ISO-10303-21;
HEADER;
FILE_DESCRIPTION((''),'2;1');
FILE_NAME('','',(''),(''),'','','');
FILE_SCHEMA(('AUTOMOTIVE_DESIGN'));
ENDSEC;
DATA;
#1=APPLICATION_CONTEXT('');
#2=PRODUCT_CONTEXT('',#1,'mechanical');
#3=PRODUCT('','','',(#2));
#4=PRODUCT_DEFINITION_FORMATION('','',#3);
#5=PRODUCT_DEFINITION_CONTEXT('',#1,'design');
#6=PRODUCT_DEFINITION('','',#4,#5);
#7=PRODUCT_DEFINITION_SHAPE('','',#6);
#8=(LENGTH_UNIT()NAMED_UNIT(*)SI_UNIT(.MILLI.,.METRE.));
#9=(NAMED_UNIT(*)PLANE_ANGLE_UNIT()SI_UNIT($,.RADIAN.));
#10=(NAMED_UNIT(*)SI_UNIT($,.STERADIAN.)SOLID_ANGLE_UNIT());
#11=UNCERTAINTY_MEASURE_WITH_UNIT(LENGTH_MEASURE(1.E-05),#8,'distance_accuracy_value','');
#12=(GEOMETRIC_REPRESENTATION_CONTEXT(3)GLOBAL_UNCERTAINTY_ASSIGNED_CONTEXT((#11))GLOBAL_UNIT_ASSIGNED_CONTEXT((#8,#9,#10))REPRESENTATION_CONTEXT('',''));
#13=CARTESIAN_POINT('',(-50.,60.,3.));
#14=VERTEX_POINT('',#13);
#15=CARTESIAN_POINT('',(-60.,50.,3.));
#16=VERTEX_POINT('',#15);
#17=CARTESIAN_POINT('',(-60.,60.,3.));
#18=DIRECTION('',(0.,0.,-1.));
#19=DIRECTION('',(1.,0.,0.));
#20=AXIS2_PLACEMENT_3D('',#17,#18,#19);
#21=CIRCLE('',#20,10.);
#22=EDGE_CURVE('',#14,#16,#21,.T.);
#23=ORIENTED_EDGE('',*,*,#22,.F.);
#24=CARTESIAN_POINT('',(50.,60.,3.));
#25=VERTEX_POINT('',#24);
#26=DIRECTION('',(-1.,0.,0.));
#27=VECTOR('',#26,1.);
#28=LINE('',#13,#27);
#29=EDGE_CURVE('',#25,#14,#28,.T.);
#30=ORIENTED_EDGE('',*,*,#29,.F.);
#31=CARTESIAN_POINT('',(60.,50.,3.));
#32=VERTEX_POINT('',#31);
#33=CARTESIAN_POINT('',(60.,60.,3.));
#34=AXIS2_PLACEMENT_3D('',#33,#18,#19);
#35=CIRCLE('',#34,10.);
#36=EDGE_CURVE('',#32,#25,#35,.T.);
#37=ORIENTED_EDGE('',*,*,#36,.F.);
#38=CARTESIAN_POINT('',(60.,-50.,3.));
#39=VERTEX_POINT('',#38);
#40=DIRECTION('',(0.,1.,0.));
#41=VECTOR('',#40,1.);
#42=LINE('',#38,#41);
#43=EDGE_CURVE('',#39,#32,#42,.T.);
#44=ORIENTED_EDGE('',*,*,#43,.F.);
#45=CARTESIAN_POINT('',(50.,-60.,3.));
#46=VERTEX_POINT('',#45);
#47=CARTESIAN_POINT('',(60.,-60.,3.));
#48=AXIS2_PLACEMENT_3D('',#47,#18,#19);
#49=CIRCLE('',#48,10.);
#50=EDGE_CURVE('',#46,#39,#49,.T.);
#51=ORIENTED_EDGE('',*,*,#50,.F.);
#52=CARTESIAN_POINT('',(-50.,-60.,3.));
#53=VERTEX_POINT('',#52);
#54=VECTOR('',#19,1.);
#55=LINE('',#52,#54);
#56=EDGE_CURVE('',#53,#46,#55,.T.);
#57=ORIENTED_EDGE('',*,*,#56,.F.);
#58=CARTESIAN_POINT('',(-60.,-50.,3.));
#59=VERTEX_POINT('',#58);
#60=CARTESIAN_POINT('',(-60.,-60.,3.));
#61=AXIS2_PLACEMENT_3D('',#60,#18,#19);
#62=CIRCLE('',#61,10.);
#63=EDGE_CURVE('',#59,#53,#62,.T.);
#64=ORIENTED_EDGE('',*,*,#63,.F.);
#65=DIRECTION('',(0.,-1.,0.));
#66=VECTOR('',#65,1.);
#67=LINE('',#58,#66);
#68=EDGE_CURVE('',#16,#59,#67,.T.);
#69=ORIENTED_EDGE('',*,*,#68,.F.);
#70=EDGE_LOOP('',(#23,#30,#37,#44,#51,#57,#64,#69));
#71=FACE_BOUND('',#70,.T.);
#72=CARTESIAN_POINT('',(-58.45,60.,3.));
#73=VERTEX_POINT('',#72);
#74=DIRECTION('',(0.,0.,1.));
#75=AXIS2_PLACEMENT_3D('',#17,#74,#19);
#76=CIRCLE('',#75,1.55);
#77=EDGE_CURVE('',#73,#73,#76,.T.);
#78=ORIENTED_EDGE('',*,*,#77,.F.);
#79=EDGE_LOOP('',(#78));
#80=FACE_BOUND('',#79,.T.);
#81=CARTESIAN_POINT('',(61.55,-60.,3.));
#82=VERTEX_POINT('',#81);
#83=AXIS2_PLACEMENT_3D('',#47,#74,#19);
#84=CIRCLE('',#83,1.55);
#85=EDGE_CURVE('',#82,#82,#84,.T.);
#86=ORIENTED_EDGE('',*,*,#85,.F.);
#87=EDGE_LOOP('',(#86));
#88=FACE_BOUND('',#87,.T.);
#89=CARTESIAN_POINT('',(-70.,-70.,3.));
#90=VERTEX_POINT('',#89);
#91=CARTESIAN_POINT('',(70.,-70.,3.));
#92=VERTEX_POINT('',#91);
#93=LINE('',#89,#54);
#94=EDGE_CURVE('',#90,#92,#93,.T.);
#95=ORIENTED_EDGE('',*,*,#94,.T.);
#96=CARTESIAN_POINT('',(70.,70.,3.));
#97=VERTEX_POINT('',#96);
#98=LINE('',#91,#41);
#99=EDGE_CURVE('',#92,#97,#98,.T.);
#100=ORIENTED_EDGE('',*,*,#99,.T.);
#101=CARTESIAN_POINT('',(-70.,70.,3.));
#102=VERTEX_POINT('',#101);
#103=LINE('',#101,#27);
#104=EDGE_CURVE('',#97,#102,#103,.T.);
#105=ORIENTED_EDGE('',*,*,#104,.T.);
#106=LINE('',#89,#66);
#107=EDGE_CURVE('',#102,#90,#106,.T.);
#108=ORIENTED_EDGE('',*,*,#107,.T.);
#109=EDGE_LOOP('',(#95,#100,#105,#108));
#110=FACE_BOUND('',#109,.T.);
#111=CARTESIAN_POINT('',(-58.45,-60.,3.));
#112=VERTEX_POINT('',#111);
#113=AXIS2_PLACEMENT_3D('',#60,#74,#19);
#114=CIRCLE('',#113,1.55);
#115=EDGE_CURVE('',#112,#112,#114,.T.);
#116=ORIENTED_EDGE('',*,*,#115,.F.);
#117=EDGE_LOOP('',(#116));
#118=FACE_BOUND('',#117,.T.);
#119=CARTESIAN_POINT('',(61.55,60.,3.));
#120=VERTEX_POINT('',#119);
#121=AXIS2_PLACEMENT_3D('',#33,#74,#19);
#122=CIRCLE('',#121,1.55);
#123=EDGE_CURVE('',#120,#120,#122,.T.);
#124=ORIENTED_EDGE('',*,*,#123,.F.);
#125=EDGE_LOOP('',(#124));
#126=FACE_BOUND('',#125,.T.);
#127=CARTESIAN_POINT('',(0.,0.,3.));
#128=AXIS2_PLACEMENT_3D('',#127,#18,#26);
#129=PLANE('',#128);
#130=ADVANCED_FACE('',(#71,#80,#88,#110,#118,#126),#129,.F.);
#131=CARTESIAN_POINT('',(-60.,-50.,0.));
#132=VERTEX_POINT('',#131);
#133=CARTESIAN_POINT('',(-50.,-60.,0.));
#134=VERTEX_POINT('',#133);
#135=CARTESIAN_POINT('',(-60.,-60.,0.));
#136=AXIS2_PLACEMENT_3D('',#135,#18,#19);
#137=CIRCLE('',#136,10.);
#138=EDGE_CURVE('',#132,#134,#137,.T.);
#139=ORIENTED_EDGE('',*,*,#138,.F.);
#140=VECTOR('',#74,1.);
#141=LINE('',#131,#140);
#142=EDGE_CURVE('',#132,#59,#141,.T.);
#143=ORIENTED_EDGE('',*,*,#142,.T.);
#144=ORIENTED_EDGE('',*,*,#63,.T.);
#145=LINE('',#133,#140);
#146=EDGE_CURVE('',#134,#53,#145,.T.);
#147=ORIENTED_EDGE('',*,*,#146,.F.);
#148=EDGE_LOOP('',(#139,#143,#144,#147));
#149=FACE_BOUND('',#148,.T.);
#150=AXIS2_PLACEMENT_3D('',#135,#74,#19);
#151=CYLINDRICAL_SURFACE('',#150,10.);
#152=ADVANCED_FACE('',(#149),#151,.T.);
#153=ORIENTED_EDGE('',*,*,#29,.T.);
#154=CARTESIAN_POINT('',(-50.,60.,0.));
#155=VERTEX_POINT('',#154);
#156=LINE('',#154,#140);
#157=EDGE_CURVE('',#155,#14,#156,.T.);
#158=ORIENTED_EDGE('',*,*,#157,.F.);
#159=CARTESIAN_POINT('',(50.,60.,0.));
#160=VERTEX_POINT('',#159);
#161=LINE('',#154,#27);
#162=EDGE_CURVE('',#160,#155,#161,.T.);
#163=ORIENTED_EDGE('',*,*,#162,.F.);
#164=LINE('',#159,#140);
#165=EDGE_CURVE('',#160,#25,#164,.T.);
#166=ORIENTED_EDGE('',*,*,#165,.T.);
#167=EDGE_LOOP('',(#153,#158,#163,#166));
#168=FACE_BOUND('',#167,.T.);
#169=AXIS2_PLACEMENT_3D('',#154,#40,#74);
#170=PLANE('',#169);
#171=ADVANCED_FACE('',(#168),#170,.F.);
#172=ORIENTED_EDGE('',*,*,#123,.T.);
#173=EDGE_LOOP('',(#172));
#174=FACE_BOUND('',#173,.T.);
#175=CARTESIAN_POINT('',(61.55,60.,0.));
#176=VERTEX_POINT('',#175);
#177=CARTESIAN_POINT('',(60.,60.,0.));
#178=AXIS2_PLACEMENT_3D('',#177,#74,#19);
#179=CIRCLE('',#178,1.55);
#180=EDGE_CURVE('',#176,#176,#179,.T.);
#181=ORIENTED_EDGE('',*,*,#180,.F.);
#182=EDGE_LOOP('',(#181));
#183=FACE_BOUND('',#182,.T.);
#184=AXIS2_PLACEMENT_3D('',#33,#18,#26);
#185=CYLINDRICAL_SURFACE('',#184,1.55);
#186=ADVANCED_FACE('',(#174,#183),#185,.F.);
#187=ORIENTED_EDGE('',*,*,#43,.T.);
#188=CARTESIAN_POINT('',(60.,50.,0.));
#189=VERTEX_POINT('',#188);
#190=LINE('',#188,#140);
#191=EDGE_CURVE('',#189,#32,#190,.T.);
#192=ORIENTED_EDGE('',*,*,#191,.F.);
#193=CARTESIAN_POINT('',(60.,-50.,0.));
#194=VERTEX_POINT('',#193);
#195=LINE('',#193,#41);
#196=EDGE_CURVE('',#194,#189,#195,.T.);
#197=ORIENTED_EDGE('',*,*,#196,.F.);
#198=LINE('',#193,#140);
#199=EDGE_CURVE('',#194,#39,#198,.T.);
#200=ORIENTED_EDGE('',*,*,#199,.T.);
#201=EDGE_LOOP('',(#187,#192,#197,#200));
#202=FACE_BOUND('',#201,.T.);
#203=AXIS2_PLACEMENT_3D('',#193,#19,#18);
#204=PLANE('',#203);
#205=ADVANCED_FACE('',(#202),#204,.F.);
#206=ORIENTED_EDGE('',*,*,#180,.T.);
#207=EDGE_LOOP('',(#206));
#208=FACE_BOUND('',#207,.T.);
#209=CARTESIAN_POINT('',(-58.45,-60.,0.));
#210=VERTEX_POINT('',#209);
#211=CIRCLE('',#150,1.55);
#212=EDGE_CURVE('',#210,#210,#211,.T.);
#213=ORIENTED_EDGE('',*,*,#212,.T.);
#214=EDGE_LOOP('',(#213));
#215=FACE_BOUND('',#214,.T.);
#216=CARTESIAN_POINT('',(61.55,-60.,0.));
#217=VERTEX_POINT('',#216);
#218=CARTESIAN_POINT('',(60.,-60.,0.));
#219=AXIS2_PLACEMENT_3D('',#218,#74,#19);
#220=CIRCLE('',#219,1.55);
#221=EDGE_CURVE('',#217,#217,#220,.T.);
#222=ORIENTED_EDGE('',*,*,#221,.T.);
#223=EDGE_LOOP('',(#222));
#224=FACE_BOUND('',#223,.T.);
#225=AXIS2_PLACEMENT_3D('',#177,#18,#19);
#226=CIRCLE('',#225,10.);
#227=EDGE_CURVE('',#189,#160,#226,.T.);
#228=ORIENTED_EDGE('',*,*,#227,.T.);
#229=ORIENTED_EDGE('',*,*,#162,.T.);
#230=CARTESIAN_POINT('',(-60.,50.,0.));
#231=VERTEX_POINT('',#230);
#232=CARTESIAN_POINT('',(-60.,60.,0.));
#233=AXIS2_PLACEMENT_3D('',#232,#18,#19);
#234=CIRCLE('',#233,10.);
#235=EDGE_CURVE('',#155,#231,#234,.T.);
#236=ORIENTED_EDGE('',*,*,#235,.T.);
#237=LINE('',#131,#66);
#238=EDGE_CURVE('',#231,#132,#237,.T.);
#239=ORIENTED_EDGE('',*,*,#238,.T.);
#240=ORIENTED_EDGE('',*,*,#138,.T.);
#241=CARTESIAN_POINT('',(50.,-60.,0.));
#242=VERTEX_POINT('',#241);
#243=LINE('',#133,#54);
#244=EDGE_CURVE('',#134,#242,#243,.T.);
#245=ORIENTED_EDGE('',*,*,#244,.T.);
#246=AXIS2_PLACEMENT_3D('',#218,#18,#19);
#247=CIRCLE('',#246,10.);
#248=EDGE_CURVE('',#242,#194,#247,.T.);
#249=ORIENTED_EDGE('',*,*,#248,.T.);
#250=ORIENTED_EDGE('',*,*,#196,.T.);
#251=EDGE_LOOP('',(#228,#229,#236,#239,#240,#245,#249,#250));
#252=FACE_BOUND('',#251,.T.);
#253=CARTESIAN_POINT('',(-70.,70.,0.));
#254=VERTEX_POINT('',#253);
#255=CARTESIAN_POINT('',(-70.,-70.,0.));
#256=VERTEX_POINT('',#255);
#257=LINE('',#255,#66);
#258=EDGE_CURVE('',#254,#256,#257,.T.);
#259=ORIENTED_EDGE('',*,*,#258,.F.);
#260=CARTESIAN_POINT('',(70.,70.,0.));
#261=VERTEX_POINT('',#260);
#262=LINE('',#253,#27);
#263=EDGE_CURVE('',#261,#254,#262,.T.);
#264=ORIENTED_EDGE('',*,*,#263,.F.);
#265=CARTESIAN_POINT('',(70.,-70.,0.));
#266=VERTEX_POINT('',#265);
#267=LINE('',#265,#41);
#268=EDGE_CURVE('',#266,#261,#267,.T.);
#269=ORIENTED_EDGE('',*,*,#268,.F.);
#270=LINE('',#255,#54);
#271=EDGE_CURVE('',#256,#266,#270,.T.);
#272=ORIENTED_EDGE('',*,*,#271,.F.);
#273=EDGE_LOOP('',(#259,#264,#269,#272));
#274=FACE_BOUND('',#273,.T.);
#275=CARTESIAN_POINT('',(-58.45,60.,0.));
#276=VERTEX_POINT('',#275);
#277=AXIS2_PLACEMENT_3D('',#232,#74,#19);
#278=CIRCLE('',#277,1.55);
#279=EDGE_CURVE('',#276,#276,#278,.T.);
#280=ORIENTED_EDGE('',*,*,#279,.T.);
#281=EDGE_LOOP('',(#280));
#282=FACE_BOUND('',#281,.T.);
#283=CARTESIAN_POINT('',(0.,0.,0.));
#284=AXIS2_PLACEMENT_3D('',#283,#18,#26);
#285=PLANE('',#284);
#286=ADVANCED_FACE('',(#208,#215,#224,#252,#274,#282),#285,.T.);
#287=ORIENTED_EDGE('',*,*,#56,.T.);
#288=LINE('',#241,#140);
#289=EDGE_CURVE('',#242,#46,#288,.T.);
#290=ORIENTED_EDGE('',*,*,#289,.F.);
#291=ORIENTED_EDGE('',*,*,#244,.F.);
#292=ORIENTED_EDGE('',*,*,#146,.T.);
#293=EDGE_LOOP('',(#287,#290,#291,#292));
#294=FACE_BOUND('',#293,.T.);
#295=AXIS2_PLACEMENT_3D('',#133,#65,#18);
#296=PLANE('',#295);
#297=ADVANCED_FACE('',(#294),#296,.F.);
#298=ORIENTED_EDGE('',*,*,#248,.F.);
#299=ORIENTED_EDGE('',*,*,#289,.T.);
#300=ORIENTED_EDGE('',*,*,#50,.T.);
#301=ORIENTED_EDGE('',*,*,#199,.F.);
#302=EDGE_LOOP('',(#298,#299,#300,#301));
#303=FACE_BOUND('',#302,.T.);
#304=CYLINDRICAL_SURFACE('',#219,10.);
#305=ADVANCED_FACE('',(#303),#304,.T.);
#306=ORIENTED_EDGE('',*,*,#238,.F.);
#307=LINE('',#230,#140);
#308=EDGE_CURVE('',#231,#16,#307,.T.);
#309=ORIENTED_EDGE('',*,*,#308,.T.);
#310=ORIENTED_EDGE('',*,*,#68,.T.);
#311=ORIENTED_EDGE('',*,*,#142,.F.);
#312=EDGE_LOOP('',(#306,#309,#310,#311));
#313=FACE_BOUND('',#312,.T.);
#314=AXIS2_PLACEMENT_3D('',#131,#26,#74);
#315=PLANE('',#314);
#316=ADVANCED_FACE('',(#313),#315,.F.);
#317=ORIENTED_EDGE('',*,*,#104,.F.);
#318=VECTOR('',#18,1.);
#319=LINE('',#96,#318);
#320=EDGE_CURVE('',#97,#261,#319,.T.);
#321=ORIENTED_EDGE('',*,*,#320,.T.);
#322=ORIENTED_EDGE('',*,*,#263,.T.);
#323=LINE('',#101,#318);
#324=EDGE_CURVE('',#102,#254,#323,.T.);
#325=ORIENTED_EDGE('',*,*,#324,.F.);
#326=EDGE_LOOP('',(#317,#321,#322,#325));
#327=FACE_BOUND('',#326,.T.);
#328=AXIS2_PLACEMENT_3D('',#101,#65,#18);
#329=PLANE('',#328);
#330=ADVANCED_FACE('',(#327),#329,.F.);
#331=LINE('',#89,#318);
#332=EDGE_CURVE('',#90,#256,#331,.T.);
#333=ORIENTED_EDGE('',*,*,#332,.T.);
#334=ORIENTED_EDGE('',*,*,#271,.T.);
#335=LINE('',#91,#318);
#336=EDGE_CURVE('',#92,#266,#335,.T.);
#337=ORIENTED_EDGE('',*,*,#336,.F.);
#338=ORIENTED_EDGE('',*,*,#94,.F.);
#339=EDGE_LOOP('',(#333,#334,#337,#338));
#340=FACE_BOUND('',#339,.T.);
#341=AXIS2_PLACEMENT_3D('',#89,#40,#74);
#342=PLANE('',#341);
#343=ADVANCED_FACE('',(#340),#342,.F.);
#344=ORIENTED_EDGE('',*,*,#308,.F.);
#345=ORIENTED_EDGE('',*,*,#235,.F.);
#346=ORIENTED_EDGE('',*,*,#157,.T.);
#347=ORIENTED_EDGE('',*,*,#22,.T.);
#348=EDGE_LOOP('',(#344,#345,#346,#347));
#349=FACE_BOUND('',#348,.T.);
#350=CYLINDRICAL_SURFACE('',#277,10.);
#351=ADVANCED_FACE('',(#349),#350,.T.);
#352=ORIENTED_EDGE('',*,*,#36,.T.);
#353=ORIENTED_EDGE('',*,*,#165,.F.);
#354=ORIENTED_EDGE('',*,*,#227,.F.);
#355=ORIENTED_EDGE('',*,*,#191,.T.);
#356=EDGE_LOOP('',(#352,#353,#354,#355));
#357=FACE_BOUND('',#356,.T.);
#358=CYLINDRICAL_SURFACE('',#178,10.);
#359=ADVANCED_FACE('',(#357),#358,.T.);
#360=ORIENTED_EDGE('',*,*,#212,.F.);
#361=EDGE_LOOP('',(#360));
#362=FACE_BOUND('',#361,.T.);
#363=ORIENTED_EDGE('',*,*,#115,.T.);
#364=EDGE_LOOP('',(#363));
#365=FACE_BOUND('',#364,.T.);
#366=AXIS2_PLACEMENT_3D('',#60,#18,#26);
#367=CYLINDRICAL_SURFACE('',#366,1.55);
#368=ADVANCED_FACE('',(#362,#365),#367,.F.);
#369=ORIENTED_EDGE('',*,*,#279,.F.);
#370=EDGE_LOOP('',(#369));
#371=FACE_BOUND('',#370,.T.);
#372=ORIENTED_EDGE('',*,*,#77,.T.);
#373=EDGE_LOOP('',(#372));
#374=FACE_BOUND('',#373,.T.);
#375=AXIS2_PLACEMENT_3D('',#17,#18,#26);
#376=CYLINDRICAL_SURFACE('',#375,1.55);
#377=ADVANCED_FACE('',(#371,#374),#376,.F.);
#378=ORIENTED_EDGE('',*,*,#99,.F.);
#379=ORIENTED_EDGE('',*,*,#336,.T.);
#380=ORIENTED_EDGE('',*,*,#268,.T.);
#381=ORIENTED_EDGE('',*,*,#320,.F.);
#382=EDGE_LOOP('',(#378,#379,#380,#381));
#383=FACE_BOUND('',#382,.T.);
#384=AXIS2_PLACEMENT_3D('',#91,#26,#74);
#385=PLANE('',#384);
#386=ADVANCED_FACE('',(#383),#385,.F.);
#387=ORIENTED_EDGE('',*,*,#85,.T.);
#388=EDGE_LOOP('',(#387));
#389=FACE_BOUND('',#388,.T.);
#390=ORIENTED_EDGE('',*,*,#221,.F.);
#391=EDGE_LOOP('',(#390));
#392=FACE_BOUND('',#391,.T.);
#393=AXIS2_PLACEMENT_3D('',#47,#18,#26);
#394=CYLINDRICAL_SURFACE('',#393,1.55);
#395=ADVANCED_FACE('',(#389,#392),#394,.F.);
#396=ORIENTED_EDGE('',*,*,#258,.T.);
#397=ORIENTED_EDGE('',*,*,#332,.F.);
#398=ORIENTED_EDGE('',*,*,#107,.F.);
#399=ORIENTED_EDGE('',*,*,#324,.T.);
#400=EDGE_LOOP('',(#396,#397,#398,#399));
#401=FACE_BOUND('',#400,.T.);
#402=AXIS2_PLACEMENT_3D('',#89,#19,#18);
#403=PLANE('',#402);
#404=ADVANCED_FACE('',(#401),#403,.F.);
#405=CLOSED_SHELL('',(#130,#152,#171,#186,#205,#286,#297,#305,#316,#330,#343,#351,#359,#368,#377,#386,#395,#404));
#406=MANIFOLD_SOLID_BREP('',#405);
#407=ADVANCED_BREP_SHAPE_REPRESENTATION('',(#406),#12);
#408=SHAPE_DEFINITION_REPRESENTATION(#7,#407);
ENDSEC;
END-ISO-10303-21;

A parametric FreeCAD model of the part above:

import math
import FreeCAD as App
import Part
import Sketcher

V = App.Vector

doc = App.newDocument("Part")
body = doc.addObject("PartDesign::Body", "Body")

# Sketch on XY plane
sketch1 = body.newObject("Sketcher::SketchObject", "Sketch")
sketch1.AttachmentSupport = (doc.getObject("XY_Plane"), [""])
sketch1.MapMode = "FlatFace"
sketch1.addGeometry(Part.LineSegment(V(-70, 70, 0), V(-70, -70, 0)), False)
sketch1.addGeometry(Part.LineSegment(V(-70, -70, 0), V(70, -70, 0)), False)
sketch1.addGeometry(Part.LineSegment(V(70, -70, 0), V(70, 70, 0)), False)
sketch1.addGeometry(Part.LineSegment(V(70, 70, 0), V(-70, 70, 0)), False)
sketch1.addGeometry(Part.Circle(V(-60, -60, 0), V(0, 0, 1), 1.55), False)
sketch1.addGeometry(Part.Circle(V(60, -60, 0), V(0, 0, 1), 1.55), False)
sketch1.addGeometry(Part.Circle(V(-60, 60, 0), V(0, 0, 1), 1.55), False)
sketch1.addGeometry(Part.Circle(V(60, 60, 0), V(0, 0, 1), 1.55), False)
sketch1.addConstraint(Sketcher.Constraint("Coincident", 0, 2, 1, 1))
sketch1.addConstraint(Sketcher.Constraint("Coincident", 1, 2, 2, 1))
sketch1.addConstraint(Sketcher.Constraint("Coincident", 2, 2, 3, 1))
sketch1.addConstraint(Sketcher.Constraint("Coincident", 3, 2, 0, 1))
sketch1.addConstraint(Sketcher.Constraint("Vertical", 0))
sketch1.addConstraint(Sketcher.Constraint("Horizontal", 1))
sketch1.addConstraint(Sketcher.Constraint("Vertical", 2))
sketch1.addConstraint(Sketcher.Constraint("Horizontal", 3))
sketch1.addConstraint(Sketcher.Constraint("Equal", 4, 5))
sketch1.addConstraint(Sketcher.Constraint("Equal", 5, 6))
sketch1.addConstraint(Sketcher.Constraint("Equal", 6, 7))
sketch1.addConstraint(Sketcher.Constraint("Symmetric", 5, 3, 6, 3, -1, 1))
sketch1.addConstraint(Sketcher.Constraint("Symmetric", 4, 3, 7, 3, -1, 1))
sketch1.addConstraint(Sketcher.Constraint("Symmetric", 0, 2, 2, 2, -1, 1))
sketch1.addConstraint(Sketcher.Constraint("Symmetric", 4, 3, 5, 3, -2))
sketch1.addConstraint(Sketcher.Constraint("Equal", 3, 0))
sketch1.addConstraint(Sketcher.Constraint("Diameter", 4, 3.1))
sketch1.addConstraint(Sketcher.Constraint("DistanceX", 1, 1, 1, 2, 140.0))
sketch1.addConstraint(Sketcher.Constraint("DistanceX", 4, 3, -1, 1, 60.0))
sketch1.addConstraint(Sketcher.Constraint("DistanceY", 4, 3, -1, 1, 60.0))
pad1 = body.newObject("PartDesign::Pad", "Pad")
pad1.Profile = sketch1
pad1.Length = 3

# Sketch on XY plane
sketch2 = body.newObject("Sketcher::SketchObject", "Sketch001")
sketch2.AttachmentSupport = (doc.getObject("XY_Plane"), [""])
sketch2.MapMode = "FlatFace"
sketch2.AttachmentOffset = App.Placement(V(0, 0, 3), App.Rotation())
sketch2.addGeometry(Part.LineSegment(V(-50, -60, 0), V(50, -60, 0)), False)
sketch2.addGeometry(Part.ArcOfCircle(Part.Circle(V(60, -60, 0), V(0, 0, 1), 10), math.radians(90), math.radians(180)), False)
sketch2.addGeometry(Part.LineSegment(V(60, -50, 0), V(60, 50, 0)), False)
sketch2.addGeometry(Part.ArcOfCircle(Part.Circle(V(60, 60, 0), V(0, 0, 1), 10), math.radians(180), math.radians(270)), False)
sketch2.addGeometry(Part.LineSegment(V(50, 60, 0), V(-50, 60, 0)), False)
sketch2.addGeometry(Part.ArcOfCircle(Part.Circle(V(-60, 60, 0), V(0, 0, 1), 10), math.radians(-90), math.radians(0)), False)
sketch2.addGeometry(Part.LineSegment(V(-60, 50, 0), V(-60, -50, 0)), False)
sketch2.addGeometry(Part.ArcOfCircle(Part.Circle(V(-60, -60, 0), V(0, 0, 1), 10), math.radians(0), math.radians(90)), False)
sketch2.addConstraint(Sketcher.Constraint("Coincident", 0, 2, 1, 2))
sketch2.addConstraint(Sketcher.Constraint("Coincident", 1, 1, 2, 1))
sketch2.addConstraint(Sketcher.Constraint("Coincident", 2, 2, 3, 2))
sketch2.addConstraint(Sketcher.Constraint("Coincident", 3, 1, 4, 1))
sketch2.addConstraint(Sketcher.Constraint("Coincident", 4, 2, 5, 2))
sketch2.addConstraint(Sketcher.Constraint("Coincident", 5, 1, 6, 1))
sketch2.addConstraint(Sketcher.Constraint("Coincident", 6, 2, 7, 2))
sketch2.addConstraint(Sketcher.Constraint("Coincident", 7, 1, 0, 1))
sketch2.addConstraint(Sketcher.Constraint("Horizontal", 0))
sketch2.addConstraint(Sketcher.Constraint("Vertical", 2))
sketch2.addConstraint(Sketcher.Constraint("Horizontal", 4))
sketch2.addConstraint(Sketcher.Constraint("Vertical", 6))
sketch2.addConstraint(Sketcher.Constraint("Equal", 1, 3))
sketch2.addConstraint(Sketcher.Constraint("Equal", 3, 5))
sketch2.addConstraint(Sketcher.Constraint("Equal", 5, 7))
sketch2.addConstraint(Sketcher.Constraint("Symmetric", 1, 3, 5, 3, -1, 1))
sketch2.addConstraint(Sketcher.Constraint("Symmetric", 3, 3, 7, 3, -1, 1))
sketch2.addConstraint(Sketcher.Constraint("Symmetric", 3, 3, 5, 3, -2))
sketch2.addConstraint(Sketcher.Constraint("Horizontal", 7, 3, 0, 2))
sketch2.addConstraint(Sketcher.Constraint("Horizontal", 5, 3, 3, 1))
sketch2.addConstraint(Sketcher.Constraint("Vertical", 3, 3, 1, 1))
sketch2.addConstraint(Sketcher.Constraint("Vertical", 7, 3, 5, 1))
sketch2.addConstraint(Sketcher.Constraint("Equal", 4, 2))
sketch2.addConstraint(Sketcher.Constraint("Radius", 1, 10.0))
sketch2.addConstraint(Sketcher.Constraint("DistanceX", 0, 1, 0, 2, 100.0))
pocket1 = body.newObject("PartDesign::Pocket", "Pocket")
pocket1.Profile = sketch2
pocket1.Type = "ThroughAll"

doc.recompute()
